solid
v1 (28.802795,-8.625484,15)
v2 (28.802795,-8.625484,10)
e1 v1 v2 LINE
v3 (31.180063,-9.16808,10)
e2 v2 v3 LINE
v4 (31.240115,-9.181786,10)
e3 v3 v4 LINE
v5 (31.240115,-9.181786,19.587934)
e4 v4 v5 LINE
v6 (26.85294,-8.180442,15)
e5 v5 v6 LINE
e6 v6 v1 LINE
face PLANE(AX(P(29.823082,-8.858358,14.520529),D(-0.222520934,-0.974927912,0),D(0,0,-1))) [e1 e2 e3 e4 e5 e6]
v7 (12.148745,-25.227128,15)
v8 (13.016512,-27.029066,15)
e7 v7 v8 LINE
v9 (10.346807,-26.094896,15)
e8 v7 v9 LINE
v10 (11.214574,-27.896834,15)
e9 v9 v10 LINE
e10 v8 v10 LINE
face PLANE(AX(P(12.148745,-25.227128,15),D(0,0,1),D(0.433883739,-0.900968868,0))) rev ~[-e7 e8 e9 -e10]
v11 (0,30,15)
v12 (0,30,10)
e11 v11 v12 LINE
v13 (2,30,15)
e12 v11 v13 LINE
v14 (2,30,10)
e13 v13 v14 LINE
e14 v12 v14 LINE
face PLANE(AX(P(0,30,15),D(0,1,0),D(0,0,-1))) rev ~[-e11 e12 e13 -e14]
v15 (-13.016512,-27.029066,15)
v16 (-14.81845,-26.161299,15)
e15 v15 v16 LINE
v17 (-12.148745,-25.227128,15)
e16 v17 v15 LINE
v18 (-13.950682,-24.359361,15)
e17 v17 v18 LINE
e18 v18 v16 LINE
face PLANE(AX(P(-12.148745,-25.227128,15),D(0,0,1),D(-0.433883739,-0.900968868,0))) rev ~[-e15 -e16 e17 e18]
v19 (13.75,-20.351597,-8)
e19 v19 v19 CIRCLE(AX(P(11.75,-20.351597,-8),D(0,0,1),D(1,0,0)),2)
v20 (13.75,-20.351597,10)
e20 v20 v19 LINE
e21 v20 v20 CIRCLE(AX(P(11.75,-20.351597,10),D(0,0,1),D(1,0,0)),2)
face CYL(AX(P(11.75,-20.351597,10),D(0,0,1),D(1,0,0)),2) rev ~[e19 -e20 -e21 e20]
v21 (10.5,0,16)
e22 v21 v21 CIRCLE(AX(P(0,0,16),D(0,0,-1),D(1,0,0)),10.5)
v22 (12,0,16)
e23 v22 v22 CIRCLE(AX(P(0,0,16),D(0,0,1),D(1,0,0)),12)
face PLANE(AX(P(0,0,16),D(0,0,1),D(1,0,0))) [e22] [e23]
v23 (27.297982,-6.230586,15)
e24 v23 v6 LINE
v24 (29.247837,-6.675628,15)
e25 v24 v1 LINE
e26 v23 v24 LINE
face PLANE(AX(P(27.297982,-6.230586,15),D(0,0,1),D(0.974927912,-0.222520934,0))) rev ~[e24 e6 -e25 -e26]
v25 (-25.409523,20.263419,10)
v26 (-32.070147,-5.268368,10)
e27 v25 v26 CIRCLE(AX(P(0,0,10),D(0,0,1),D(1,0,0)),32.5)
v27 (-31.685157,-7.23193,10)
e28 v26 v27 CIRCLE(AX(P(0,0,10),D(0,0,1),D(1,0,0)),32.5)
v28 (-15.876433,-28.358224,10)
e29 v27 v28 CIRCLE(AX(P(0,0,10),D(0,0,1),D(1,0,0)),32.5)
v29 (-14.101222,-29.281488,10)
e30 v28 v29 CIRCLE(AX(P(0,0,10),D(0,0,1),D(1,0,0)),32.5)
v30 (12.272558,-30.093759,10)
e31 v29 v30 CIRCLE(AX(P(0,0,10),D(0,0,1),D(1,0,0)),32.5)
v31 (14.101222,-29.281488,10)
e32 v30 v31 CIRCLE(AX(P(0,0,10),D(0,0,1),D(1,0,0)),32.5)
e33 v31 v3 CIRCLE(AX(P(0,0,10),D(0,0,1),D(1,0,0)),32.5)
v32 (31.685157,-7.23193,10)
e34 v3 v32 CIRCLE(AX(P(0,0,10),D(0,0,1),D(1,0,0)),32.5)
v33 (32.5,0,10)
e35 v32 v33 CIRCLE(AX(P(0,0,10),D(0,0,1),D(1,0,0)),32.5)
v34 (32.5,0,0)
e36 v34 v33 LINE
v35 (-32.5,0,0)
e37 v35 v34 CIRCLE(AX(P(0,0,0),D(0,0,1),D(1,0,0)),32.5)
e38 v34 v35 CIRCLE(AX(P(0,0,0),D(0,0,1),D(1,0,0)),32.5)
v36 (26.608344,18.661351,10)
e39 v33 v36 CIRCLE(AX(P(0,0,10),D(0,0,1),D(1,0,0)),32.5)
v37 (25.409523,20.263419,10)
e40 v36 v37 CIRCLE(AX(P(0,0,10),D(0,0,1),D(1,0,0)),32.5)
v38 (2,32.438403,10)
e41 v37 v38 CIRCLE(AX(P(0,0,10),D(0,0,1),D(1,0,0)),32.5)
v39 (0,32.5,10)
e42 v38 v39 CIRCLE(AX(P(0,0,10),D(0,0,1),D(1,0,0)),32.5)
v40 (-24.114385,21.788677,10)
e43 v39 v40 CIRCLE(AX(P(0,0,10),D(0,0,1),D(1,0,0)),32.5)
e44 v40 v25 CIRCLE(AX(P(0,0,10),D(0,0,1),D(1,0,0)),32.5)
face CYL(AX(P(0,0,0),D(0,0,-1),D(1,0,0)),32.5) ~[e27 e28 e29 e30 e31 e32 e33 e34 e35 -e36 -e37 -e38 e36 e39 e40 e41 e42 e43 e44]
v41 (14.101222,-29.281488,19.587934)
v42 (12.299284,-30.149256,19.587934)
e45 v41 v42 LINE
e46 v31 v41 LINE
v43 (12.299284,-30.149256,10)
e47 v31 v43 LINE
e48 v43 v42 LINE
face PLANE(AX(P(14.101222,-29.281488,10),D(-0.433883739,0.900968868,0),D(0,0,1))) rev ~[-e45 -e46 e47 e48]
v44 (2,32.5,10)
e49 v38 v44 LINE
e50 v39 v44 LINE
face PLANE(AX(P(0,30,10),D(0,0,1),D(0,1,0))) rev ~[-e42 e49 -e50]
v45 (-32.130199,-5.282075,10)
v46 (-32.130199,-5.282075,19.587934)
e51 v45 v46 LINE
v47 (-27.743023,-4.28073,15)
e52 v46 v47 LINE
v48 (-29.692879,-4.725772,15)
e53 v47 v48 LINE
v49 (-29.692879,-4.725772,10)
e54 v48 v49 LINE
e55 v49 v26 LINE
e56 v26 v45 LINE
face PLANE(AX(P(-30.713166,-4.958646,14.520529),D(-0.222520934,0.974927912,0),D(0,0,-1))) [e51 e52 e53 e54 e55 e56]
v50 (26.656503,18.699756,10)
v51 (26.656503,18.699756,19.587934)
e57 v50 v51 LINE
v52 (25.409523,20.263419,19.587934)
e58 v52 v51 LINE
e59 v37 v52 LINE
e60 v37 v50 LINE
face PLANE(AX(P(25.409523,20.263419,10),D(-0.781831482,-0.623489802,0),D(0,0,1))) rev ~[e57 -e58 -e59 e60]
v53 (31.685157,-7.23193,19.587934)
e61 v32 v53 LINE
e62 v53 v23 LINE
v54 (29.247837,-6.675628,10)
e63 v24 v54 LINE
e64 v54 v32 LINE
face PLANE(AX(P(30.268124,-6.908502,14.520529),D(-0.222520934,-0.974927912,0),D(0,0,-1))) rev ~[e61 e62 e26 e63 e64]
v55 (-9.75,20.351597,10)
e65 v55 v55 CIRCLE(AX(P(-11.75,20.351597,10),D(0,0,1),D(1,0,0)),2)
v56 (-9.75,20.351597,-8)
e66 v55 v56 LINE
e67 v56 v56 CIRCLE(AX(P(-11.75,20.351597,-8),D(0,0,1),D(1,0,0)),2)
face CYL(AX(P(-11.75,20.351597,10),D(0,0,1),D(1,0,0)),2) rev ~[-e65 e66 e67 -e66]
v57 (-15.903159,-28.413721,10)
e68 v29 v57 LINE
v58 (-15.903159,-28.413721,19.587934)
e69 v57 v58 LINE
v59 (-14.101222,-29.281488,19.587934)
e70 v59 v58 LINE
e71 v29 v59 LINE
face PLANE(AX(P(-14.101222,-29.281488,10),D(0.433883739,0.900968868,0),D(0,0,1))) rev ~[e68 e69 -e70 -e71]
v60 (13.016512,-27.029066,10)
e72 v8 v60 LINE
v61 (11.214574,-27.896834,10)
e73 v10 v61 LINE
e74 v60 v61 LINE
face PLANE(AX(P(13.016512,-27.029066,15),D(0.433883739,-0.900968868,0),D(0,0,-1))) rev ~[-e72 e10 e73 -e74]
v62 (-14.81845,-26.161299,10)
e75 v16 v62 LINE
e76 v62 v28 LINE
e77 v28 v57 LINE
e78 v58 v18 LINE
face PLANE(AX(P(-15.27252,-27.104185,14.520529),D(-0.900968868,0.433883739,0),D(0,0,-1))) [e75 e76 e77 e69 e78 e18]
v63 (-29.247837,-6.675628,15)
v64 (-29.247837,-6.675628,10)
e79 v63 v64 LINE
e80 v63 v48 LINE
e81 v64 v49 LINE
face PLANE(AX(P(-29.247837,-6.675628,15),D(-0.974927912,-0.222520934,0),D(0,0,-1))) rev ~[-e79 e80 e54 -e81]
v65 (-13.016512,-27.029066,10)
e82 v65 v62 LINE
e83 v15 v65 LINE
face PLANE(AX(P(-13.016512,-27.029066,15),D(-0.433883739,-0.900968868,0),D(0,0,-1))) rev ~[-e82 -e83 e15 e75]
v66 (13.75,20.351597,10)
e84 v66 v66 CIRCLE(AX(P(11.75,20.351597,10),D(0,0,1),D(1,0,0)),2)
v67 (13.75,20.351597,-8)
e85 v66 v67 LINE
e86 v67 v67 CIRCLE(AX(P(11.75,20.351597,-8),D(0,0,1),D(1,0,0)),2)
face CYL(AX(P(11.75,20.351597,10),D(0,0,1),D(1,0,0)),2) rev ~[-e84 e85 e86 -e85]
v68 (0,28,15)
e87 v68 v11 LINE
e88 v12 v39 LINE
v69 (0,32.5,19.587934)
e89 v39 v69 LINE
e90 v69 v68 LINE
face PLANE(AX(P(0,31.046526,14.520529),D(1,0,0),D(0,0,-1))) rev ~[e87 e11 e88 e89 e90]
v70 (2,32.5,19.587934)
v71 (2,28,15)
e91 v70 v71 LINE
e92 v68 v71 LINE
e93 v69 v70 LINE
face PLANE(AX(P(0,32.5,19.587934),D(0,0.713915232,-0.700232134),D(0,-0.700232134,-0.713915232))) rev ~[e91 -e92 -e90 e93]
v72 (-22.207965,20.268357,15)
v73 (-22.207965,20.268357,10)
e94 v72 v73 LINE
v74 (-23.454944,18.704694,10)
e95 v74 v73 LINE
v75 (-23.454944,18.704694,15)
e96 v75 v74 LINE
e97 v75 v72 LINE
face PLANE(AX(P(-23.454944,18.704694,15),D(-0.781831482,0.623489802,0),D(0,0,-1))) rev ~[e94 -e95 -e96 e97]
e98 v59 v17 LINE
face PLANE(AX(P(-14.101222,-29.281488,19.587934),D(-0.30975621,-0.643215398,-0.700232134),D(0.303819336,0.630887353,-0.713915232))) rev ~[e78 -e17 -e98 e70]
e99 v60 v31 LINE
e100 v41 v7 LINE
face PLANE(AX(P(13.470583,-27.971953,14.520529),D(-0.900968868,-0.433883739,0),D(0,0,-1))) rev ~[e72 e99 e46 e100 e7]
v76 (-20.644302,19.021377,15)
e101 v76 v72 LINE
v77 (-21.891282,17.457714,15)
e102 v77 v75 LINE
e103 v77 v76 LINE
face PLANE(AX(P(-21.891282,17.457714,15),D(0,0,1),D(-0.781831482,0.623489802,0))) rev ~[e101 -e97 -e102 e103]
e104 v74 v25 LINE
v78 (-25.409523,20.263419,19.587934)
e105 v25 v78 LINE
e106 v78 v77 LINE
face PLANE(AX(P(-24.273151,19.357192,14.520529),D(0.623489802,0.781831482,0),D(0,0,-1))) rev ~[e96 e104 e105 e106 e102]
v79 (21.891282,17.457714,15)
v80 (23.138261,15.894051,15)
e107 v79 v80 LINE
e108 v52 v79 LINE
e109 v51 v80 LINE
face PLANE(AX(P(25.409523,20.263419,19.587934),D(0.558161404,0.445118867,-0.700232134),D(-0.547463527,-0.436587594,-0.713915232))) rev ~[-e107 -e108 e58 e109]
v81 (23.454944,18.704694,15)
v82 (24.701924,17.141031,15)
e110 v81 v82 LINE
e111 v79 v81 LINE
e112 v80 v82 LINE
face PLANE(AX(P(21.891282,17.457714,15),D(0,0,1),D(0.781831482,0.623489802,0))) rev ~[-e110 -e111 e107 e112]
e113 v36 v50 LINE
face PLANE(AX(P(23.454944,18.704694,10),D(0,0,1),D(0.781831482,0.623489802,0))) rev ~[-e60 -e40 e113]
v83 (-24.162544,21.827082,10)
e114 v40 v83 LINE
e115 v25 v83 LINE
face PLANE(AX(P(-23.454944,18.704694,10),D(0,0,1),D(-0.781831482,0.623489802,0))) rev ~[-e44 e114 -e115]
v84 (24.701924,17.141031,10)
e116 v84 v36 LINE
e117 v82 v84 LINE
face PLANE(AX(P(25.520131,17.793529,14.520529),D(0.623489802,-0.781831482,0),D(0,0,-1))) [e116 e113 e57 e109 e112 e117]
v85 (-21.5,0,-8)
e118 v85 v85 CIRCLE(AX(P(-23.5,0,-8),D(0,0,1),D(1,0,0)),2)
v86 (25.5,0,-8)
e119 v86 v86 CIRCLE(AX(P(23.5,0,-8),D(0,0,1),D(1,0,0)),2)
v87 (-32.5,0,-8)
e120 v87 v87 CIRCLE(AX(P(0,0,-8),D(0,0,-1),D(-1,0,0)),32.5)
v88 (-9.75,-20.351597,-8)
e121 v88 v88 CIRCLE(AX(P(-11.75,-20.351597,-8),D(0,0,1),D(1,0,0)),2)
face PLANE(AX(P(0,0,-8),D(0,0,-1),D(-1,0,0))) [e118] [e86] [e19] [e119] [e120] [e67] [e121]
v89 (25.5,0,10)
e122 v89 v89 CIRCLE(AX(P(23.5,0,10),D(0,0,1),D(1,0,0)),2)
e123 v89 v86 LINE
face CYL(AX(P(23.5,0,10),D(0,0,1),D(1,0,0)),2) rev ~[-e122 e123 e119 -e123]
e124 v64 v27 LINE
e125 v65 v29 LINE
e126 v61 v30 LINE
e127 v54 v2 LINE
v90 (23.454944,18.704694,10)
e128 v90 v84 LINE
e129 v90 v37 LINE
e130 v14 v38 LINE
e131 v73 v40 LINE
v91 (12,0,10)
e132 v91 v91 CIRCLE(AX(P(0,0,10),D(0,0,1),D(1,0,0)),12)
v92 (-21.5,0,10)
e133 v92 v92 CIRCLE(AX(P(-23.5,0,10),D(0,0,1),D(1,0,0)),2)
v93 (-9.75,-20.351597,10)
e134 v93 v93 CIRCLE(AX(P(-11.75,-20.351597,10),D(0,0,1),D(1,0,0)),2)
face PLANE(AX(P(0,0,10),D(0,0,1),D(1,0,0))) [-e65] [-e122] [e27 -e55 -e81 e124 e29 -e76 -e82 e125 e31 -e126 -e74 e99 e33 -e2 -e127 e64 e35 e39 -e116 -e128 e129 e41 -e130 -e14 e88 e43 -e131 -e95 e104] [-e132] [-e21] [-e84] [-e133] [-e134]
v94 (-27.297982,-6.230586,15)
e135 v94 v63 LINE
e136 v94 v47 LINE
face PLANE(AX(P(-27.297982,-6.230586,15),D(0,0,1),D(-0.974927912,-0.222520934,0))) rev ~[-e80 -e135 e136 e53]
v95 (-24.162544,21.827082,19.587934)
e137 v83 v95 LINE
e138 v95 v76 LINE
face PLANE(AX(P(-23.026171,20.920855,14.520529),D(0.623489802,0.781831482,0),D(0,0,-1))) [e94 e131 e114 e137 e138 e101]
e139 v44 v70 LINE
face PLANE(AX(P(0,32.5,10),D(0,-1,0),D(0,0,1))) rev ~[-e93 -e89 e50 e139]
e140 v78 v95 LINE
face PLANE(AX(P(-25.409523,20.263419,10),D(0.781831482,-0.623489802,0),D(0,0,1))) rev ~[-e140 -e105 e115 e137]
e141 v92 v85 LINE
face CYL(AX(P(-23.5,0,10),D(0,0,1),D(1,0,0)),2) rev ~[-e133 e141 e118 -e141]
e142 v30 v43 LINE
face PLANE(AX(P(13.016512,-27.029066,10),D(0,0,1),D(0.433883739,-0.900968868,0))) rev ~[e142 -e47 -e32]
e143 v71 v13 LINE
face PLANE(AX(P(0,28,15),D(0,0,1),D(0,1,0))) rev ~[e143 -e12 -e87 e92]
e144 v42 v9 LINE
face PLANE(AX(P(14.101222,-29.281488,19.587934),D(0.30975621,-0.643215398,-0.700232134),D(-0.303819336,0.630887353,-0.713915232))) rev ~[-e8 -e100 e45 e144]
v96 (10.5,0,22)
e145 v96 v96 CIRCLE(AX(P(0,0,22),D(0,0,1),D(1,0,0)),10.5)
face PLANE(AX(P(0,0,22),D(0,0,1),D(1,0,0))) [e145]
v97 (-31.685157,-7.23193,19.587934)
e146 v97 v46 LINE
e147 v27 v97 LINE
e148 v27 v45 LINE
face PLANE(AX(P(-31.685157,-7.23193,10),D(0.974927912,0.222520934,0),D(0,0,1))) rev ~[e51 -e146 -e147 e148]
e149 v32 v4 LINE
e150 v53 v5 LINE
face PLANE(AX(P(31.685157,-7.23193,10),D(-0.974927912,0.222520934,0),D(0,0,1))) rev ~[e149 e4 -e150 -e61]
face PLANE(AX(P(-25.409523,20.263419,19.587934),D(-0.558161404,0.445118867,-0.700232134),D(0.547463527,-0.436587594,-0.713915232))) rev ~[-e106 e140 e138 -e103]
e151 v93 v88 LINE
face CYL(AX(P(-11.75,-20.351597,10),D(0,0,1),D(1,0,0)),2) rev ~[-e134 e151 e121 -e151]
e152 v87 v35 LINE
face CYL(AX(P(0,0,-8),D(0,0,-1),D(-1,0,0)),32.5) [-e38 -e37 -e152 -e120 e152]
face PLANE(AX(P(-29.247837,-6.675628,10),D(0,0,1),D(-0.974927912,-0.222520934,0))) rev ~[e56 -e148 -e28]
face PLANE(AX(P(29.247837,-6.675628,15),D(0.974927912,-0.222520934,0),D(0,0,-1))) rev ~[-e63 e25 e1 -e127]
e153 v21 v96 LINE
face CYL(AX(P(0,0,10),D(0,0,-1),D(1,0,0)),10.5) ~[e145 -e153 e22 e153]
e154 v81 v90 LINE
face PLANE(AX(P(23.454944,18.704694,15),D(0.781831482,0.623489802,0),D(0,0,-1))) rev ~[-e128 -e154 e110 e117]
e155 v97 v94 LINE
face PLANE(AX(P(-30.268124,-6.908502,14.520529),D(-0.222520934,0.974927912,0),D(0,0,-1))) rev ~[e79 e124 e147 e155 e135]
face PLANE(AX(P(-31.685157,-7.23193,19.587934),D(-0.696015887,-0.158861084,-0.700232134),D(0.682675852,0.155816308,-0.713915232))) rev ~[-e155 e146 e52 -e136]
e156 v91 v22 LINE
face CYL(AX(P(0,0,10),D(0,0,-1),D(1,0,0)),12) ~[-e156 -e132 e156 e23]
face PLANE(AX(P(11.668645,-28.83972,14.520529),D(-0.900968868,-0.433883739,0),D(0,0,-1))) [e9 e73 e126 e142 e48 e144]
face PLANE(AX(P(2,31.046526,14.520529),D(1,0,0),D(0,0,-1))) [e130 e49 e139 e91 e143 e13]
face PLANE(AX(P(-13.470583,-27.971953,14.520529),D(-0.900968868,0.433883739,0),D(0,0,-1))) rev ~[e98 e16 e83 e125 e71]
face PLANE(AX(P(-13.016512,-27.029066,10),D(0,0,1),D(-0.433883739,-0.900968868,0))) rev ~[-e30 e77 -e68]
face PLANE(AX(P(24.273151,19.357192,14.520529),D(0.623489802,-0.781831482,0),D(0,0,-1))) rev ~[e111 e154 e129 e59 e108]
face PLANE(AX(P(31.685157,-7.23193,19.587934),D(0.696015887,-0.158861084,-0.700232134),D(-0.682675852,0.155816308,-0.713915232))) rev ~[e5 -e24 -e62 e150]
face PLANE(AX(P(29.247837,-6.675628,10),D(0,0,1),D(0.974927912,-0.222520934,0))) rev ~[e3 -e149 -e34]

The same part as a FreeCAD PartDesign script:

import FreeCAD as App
import Part
import Sketcher
from FreeCAD import Vector


def add_polygon(sketch, points):
    """Adds a closed chain of lines whose ends are joined by coincident constraints."""
    first, n = sketch.GeometryCount, len(points)
    for a, b in zip(points, points[1:] + points[:1]):
        sketch.addGeometry(Part.LineSegment(App.Vector(*a, 0), App.Vector(*b, 0)), False)
    for i in range(n):
        sketch.addConstraint(Sketcher.Constraint("Coincident", first + i, 2, first + (i + 1) % n, 1))

doc = App.newDocument("Part")
body = doc.addObject("PartDesign::Body", "Body")

# Sketch on XY plane
sketch1 = body.newObject("Sketcher::SketchObject", "Sketch")
sketch1.AttachmentSupport = (doc.getObject("XY_Plane"), [""])
sketch1.MapMode = "FlatFace"
sketch1.addGeometry(Part.Circle(Vector(0, 0, 0), Vector(0, 0, 1), 32), False)
sketch1.addConstraint(Sketcher.Constraint("Coincident", 0, 3, -1, 1))
sketch1.addConstraint(Sketcher.Constraint("Diameter", 0, 65.0))
pad1 = body.newObject("PartDesign::Pad", "Pad")
pad1.Profile = sketch1
pad1.Length = 10

# Sketch on YZ plane
sketch2 = body.newObject("Sketcher::SketchObject", "Sketch001")
sketch2.AttachmentSupport = (doc.getObject("YZ_Plane"), [""])
sketch2.MapMode = "FlatFace"
add_polygon(sketch2, [(32.5, 10), (32.5, 19.6), (28, 15), (30, 15), (30, 10)])  # lines 0-4
sketch2.addConstraint(Sketcher.Constraint("Vertical", 0))
sketch2.addConstraint(Sketcher.Constraint("Horizontal", 2))
sketch2.addConstraint(Sketcher.Constraint("Vertical", 3))
sketch2.addConstraint(Sketcher.Constraint("Horizontal", 4))
sketch2.addConstraint(Sketcher.Constraint("DistanceX", 2, 1, 2, 2, 2.0))
sketch2.addConstraint(Sketcher.Constraint("DistanceY", 3, 2, 3, 1, 5.0))
sketch2.addConstraint(Sketcher.Constraint("DistanceX", 4, 1, 4, 2, 2.5))
sketch2.addConstraint(Sketcher.Constraint("DistanceX", -1, 1, 1, 2, 28.0))
sketch2.addConstraint(Sketcher.Constraint("DistanceY", -1, 1, 1, 2, 15.0))
sketch2.addConstraint(Sketcher.Constraint("Distance", 1, 6.42644))
pad2 = body.newObject("PartDesign::Pad", "Pad001")
pad2.Profile = sketch2
pad2.Length = 2
doc.recompute()

polarpattern = body.newObject("PartDesign::PolarPattern", "PolarPattern")
polarpattern.Originals = [pad2]
polarpattern.Axis = (doc.getObject("Z_Axis"), [""])
polarpattern.Angle = 360
polarpattern.Occurrences = 7
body.Tip = polarpattern

# Sketch on XY plane
sketch3 = body.newObject("Sketcher::SketchObject", "Sketch002")
sketch3.AttachmentSupport = (doc.getObject("XY_Plane"), [""])
sketch3.MapMode = "FlatFace"
sketch3.AttachmentOffset = App.Placement(Vector(0, 0, 10), App.Rotation())
sketch3.addGeometry(Part.Circle(Vector(0, 0, 0), Vector(0, 0, 1), 12), False)
sketch3.addConstraint(Sketcher.Constraint("Coincident", 0, 3, -1, 1))
sketch3.addConstraint(Sketcher.Constraint("Diameter", 0, 24.0))
pad3 = body.newObject("PartDesign::Pad", "Pad002")
pad3.Profile = sketch3
pad3.Length = 6

# Sketch on XY plane
sketch4 = body.newObject("Sketcher::SketchObject", "Sketch003")
sketch4.AttachmentSupport = (doc.getObject("XY_Plane"), [""])
sketch4.MapMode = "FlatFace"
sketch4.AttachmentOffset = App.Placement(Vector(0, 0, 10), App.Rotation())
sketch4.addGeometry(Part.Circle(Vector(0, 0, 0), Vector(0, 0, 1), 10), False)
sketch4.addConstraint(Sketcher.Constraint("Coincident", 0, 3, -1, 1))
sketch4.addConstraint(Sketcher.Constraint("Diameter", 0, 21.0))
pad4 = body.newObject("PartDesign::Pad", "Pad003")
pad4.Profile = sketch4
pad4.Length = 12

# Sketch on XY plane
sketch5 = body.newObject("Sketcher::SketchObject", "Sketch004")
sketch5.AttachmentSupport = (doc.getObject("XY_Plane"), [""])
sketch5.MapMode = "FlatFace"
sketch5.AttachmentOffset = App.Placement(Vector(0, 0, -8), App.Rotation())
sketch5.addGeometry(Part.Circle(Vector(0, 0, 0), Vector(0, 0, 1), 32), False)
sketch5.addConstraint(Sketcher.Constraint("Coincident", 0, 3, -1, 1))
sketch5.addConstraint(Sketcher.Constraint("Diameter", 0, 65.0))
pad5 = body.newObject("PartDesign::Pad", "Pad004")
pad5.Profile = sketch5
pad5.Length = 8

# Sketch on XY plane
sketch6 = body.newObject("Sketcher::SketchObject", "Sketch005")
sketch6.AttachmentSupport = (doc.getObject("XY_Plane"), [""])
sketch6.MapMode = "FlatFace"
sketch6.AttachmentOffset = App.Placement(Vector(0, 0, 10), App.Rotation())
sketch6.addGeometry(Part.Circle(Vector(23.5, 0, 0), Vector(0, 0, 1), 2), False)
sketch6.addGeometry(Part.Circle(Vector(11.8, -20.4, 0), Vector(0, 0, 1), 2), False)
sketch6.addGeometry(Part.Circle(Vector(-11.8, -20.4, 0), Vector(0, 0, 1), 2), False)
sketch6.addGeometry(Part.Circle(Vector(-23.5, 0, 0), Vector(0, 0, 1), 2), False)
sketch6.addGeometry(Part.Circle(Vector(-11.8, 20.4, 0), Vector(0, 0, 1), 2), False)
sketch6.addGeometry(Part.Circle(Vector(11.8, 20.4, 0), Vector(0, 0, 1), 2), False)
sketch6.addConstraint(Sketcher.Constraint("Equal", 0, 1))
sketch6.addConstraint(Sketcher.Constraint("Equal", 1, 2))
sketch6.addConstraint(Sketcher.Constraint("Equal", 2, 3))
sketch6.addConstraint(Sketcher.Constraint("Equal", 3, 4))
sketch6.addConstraint(Sketcher.Constraint("Equal", 4, 5))
sketch6.addConstraint(Sketcher.Constraint("Symmetric", 0, 3, 3, 3, -1, 1))
sketch6.addConstraint(Sketcher.Constraint("Symmetric", 1, 3, 4, 3, -1, 1))
sketch6.addConstraint(Sketcher.Constraint("Symmetric", 2, 3, 5, 3, -1, 1))
sketch6.addConstraint(Sketcher.Constraint("Symmetric", 1, 3, 2, 3, -2))
sketch6.addConstraint(Sketcher.Constraint("PointOnObject", 0, 3, -1))
sketch6.addConstraint(Sketcher.Constraint("Diameter", 0, 4.0))
sketch6.addConstraint(Sketcher.Constraint("DistanceX", 3, 3, 0, 3, 47.0))
sketch6.addConstraint(Sketcher.Constraint("DistanceX", 2, 3, 1, 3, 23.5))
sketch6.addConstraint(Sketcher.Constraint("DistanceY", 1, 3, -1, 1, 20.351597))
pocket1 = body.newObject("PartDesign::Pocket", "Pocket")
pocket1.Profile = sketch6
pocket1.Type = "ThroughAll"

doc.recompute()
